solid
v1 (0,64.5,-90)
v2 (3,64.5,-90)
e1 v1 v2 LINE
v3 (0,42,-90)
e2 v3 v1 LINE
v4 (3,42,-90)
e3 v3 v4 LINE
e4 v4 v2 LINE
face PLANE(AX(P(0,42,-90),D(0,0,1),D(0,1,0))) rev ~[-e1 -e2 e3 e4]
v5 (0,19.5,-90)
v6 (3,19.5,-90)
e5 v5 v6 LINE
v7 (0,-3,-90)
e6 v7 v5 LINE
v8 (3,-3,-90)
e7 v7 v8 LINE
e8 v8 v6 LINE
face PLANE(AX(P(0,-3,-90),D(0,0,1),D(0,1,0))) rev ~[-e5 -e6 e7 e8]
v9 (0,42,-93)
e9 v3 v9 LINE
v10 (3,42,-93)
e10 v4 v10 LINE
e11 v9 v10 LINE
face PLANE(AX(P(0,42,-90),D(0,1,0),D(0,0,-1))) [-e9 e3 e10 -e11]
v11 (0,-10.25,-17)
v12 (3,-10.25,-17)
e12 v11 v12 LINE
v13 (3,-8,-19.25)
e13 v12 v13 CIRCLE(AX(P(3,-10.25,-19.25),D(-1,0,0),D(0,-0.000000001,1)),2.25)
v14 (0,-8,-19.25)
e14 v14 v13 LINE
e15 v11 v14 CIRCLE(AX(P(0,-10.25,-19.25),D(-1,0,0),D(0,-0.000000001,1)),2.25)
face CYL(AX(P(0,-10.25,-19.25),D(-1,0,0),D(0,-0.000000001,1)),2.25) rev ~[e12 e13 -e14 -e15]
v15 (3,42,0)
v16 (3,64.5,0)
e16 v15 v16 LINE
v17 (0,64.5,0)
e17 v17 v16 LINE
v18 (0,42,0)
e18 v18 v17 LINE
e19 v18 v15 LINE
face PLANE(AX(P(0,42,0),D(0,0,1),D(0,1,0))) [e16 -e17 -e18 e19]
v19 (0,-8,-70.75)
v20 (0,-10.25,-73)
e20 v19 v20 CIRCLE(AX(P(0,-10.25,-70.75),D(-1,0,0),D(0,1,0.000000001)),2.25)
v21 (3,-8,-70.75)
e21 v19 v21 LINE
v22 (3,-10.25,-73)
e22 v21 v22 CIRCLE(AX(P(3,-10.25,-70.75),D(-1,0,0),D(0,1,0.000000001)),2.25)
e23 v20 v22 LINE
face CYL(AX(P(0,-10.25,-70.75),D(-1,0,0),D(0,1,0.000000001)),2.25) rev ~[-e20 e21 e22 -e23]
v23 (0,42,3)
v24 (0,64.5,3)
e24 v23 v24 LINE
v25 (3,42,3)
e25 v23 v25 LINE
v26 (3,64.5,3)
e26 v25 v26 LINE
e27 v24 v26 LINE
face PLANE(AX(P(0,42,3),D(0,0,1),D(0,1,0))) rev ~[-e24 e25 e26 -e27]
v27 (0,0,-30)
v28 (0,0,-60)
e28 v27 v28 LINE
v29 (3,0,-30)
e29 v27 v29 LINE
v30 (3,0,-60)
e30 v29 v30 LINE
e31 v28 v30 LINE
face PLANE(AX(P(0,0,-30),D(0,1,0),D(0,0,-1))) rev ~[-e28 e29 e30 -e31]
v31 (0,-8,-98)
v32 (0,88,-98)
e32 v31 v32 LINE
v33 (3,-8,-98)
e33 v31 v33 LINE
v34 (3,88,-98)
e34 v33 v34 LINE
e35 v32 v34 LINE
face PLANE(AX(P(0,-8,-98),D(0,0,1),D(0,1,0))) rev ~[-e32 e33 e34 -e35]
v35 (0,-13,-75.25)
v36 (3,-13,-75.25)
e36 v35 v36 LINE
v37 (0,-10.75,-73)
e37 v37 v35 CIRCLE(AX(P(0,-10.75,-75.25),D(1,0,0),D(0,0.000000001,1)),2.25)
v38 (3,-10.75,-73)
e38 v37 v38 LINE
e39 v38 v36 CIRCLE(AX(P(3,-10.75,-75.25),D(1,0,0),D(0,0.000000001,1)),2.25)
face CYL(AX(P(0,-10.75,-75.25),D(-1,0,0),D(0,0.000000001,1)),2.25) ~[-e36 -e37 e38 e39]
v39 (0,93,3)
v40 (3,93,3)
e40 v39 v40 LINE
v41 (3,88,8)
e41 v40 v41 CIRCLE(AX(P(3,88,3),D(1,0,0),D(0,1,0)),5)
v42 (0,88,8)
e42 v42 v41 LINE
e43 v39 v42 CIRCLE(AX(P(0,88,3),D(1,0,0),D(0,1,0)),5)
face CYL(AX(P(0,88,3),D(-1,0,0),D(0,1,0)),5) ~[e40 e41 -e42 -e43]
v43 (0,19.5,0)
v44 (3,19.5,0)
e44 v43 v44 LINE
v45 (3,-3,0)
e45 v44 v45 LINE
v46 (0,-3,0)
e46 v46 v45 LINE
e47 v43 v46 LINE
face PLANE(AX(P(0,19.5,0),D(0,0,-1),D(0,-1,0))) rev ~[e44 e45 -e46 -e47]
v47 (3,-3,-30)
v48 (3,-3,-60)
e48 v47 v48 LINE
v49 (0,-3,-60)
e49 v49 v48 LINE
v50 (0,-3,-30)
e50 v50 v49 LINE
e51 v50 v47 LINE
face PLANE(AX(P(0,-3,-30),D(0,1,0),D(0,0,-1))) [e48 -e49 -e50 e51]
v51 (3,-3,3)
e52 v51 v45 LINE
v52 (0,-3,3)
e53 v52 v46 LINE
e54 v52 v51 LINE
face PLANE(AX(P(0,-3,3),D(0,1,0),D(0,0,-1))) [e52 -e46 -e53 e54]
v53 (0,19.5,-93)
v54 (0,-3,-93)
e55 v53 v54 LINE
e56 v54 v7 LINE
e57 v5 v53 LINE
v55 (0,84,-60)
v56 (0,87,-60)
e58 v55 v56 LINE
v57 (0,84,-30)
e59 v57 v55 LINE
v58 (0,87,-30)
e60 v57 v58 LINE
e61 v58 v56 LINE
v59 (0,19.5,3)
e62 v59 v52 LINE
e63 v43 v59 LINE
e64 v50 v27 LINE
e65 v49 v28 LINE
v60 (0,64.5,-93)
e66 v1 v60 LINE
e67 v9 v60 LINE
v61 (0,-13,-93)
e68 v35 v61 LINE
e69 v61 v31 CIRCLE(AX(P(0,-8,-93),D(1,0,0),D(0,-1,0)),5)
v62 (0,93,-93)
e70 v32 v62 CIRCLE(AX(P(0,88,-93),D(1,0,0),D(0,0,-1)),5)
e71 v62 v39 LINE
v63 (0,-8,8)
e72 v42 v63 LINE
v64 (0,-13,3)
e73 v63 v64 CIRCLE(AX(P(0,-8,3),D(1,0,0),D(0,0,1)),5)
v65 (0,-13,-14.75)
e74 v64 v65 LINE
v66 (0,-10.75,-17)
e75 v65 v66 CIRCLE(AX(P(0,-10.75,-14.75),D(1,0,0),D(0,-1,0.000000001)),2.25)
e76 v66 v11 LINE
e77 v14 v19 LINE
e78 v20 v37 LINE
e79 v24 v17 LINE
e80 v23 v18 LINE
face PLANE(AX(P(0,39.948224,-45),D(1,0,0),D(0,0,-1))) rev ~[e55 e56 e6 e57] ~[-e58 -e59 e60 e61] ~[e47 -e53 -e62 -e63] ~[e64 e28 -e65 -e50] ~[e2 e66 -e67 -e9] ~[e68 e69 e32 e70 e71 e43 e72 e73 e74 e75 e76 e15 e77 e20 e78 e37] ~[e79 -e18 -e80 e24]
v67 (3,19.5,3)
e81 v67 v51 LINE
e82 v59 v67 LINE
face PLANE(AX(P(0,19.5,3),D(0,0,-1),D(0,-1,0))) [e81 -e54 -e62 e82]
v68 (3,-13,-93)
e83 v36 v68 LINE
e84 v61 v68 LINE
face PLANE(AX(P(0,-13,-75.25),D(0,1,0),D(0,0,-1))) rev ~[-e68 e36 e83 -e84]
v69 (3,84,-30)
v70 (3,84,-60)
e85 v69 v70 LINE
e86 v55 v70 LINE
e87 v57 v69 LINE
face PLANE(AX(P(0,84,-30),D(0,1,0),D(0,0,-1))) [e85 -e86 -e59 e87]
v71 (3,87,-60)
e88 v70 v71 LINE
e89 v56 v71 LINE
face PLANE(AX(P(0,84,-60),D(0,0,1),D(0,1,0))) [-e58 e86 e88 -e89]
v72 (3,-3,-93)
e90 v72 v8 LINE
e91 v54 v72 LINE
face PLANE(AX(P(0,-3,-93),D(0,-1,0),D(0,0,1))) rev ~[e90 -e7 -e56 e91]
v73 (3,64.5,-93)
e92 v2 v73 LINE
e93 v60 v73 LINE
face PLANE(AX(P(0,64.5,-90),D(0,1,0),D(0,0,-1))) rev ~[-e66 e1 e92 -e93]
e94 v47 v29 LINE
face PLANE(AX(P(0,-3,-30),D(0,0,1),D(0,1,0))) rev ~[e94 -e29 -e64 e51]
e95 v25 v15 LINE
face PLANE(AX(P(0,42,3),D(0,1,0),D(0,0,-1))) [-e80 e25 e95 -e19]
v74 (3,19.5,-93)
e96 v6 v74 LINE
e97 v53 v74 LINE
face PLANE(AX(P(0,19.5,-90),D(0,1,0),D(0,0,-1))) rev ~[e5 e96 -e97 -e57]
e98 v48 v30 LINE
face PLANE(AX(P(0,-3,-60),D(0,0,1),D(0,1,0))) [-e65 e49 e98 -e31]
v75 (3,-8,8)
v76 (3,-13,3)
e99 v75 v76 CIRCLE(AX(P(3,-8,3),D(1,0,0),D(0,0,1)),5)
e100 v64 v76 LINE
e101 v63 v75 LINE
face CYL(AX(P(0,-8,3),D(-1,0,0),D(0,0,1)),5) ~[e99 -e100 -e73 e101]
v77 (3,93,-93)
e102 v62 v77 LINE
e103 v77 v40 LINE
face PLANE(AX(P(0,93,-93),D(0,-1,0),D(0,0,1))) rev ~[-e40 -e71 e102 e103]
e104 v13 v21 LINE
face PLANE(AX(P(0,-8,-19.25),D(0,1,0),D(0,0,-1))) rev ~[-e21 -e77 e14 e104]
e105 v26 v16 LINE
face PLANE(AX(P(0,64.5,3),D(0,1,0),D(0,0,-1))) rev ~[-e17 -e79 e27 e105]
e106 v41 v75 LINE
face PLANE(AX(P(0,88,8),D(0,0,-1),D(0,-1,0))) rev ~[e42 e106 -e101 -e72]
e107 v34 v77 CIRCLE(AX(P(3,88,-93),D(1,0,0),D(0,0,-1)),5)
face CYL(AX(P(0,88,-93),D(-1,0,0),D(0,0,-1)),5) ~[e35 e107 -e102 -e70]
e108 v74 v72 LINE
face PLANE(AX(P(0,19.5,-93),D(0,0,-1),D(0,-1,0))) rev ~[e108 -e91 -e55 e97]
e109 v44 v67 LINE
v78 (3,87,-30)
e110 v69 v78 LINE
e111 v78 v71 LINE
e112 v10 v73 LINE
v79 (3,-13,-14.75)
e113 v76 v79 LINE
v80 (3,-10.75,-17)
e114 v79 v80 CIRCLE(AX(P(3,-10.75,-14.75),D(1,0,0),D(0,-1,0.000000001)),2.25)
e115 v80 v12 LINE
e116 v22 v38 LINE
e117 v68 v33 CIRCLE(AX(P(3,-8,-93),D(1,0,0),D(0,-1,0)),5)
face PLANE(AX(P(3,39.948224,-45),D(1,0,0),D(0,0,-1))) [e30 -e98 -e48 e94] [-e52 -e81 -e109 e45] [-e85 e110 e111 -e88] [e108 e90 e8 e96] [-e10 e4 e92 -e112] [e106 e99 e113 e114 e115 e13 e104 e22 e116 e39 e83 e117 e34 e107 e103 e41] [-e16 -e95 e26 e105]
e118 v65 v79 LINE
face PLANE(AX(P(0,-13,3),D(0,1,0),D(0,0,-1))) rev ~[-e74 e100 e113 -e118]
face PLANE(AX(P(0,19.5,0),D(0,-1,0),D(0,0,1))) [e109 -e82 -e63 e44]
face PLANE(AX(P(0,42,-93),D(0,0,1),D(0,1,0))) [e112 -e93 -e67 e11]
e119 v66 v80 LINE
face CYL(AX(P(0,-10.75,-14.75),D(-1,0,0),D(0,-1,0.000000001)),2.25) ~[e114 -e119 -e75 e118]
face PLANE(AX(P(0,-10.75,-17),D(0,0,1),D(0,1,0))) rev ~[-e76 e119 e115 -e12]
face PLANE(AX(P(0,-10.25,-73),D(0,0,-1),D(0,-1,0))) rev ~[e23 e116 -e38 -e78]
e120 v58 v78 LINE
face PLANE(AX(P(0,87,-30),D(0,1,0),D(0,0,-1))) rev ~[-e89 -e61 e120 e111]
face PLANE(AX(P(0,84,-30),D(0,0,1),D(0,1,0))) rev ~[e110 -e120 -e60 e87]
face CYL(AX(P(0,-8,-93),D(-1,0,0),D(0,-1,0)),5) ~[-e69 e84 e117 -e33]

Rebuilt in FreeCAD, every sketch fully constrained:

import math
import FreeCAD as App
import Part
import Sketcher
Q = App.Units.Quantity


def add_polygon(sketch, points):
    """Adds a closed chain of lines whose ends are joined by coincident constraints."""
    first, n = sketch.GeometryCount, len(points)
    for a, b in zip(points, points[1:] + points[:1]):
        sketch.addGeometry(Part.LineSegment(App.Vector(*a, 0), App.Vector(*b, 0)), False)
    for i in range(n):
        sketch.addConstraint(Sketcher.Constraint("Coincident", first + i, 2, first + (i + 1) % n, 1))

doc = App.newDocument("Part")
params = doc.addObject("Spreadsheet::Sheet", "Params")
for row, (alias, value) in enumerate([
    ("sketch1_radius", "5 mm"),
    ("sketch1_width", "96 mm"),
    ("sketch1_width2", "3 mm"),
    ("sketch1_height", "30 mm"),
    ("sketch1_radius2", "2.25 mm"),
    ("pad1_length", "3 mm"),
], start=1):
    params.set(f"A{row}", alias)
    params.set(f"B{row}", "=" + value)
    params.setAlias(f"B{row}", alias)

body = doc.addObject("PartDesign::Body", "Body")

sketch1 = body.newObject("Sketcher::SketchObject", "Sketch")
sketch1.AttachmentSupport = (doc.getObject("YZ_Plane"), [""])
sketch1.MapMode = "FlatFace"
sketch1.addGeometry(Part.LineSegment(App.Vector(-13, -75.2, 0), App.Vector(-13, -93, 0)), False)
sketch1.addGeometry(Part.ArcOfCircle(Part.Circle(App.Vector(-8, -93, 0), App.Vector(0, 0, 1), 5), math.radians(180), math.radians(270)), False)
sketch1.addGeometry(Part.LineSegment(App.Vector(-8, -98, 0), App.Vector(88, -98, 0)), False)
sketch1.addGeometry(Part.ArcOfCircle(Part.Circle(App.Vector(88, -93, 0), App.Vector(0, 0, 1), 5), math.radians(-90), math.radians(0)), False)
sketch1.addGeometry(Part.LineSegment(App.Vector(93, -93, 0), App.Vector(93, 3, 0)), False)
sketch1.addGeometry(Part.ArcOfCircle(Part.Circle(App.Vector(88, 3, 0), App.Vector(0, 0, 1), 5), math.radians(0), math.radians(90)), False)
sketch1.addGeometry(Part.LineSegment(App.Vector(88, 8, 0), App.Vector(-8, 8, 0)), False)
sketch1.addGeometry(Part.ArcOfCircle(Part.Circle(App.Vector(-8, 3, 0), App.Vector(0, 0, 1), 5), math.radians(90), math.radians(180)), False)
sketch1.addGeometry(Part.LineSegment(App.Vector(-13, 3, 0), App.Vector(-13, -14.8, 0)), False)
sketch1.addGeometry(Part.ArcOfCircle(Part.Circle(App.Vector(-10.8, -14.8, 0), App.Vector(0, 0, 1), 2.2), math.radians(180), math.radians(270)), False)
sketch1.addGeometry(Part.LineSegment(App.Vector(-10.8, -17, 0), App.Vector(-10.2, -17, 0)), False)
sketch1.addGeometry(Part.ArcOfCircle(Part.Circle(App.Vector(-10.2, -19.2, 0), App.Vector(0, 0, 1), 2.2), math.radians(0), math.radians(90)), False)
sketch1.addGeometry(Part.LineSegment(App.Vector(-8, -19.2, 0), App.Vector(-8, -70.8, 0)), False)
sketch1.addGeometry(Part.ArcOfCircle(Part.Circle(App.Vector(-10.2, -70.8, 0), App.Vector(0, 0, 1), 2.2), math.radians(-90), math.radians(0)), False)
sketch1.addGeometry(Part.LineSegment(App.Vector(-10.2, -73, 0), App.Vector(-10.8, -73, 0)), False)
sketch1.addGeometry(Part.ArcOfCircle(Part.Circle(App.Vector(-10.8, -75.2, 0), App.Vector(0, 0, 1), 2.2), math.radians(90), math.radians(180)), False)
add_polygon(sketch1, [(19.5, 0), (-3, 0), (-3, 3), (19.5, 3)])
add_polygon(sketch1, [(-3, -60), (-3, -30), (0, -30), (0, -60)])
add_polygon(sketch1, [(-3, -90), (19.5, -90), (19.5, -93), (-3, -93)])
add_polygon(sketch1, [(42, 0), (42, 3), (64.5, 3), (64.5, 0)])
add_polygon(sketch1, [(42, -93), (42, -90), (64.5, -90), (64.5, -93)])
add_polygon(sketch1, [(84, -60), (84, -30), (87, -30), (87, -60)])
sketch1.addConstraint(Sketcher.Constraint("Tangent", 0, 2, 1, 1))
sketch1.addConstraint(Sketcher.Constraint("Tangent", 1, 2, 2, 1))
sketch1.addConstraint(Sketcher.Constraint("Tangent", 2, 2, 3, 1))
sketch1.addConstraint(Sketcher.Constraint("Tangent", 3, 2, 4, 1))
sketch1.addConstraint(Sketcher.Constraint("Tangent", 4, 2, 5, 1))
sketch1.addConstraint(Sketcher.Constraint("Tangent", 5, 2, 6, 1))
sketch1.addConstraint(Sketcher.Constraint("Tangent", 6, 2, 7, 1))
sketch1.addConstraint(Sketcher.Constraint("Tangent", 7, 2, 8, 1))
sketch1.addConstraint(Sketcher.Constraint("Tangent", 8, 2, 9, 1))
sketch1.addConstraint(Sketcher.Constraint("Tangent", 9, 2, 10, 1))
sketch1.addConstraint(Sketcher.Constraint("Tangent", 10, 2, 11, 2))
sketch1.addConstraint(Sketcher.Constraint("Tangent", 11, 1, 12, 1))
sketch1.addConstraint(Sketcher.Constraint("Tangent", 12, 2, 13, 2))
sketch1.addConstraint(Sketcher.Constraint("Tangent", 13, 1, 14, 1))
sketch1.addConstraint(Sketcher.Constraint("Tangent", 14, 2, 15, 1))
sketch1.addConstraint(Sketcher.Constraint("Tangent", 15, 2, 0, 1))
sketch1.addConstraint(Sketcher.Constraint("Vertical", 0))
sketch1.addConstraint(Sketcher.Constraint("Horizontal", 2))
sketch1.addConstraint(Sketcher.Constraint("Vertical", 4))
sketch1.addConstraint(Sketcher.Constraint("Horizontal", 6))
sketch1.addConstraint(Sketcher.Constraint("Vertical", 8))
sketch1.addConstraint(Sketcher.Constraint("Horizontal", 10))
sketch1.addConstraint(Sketcher.Constraint("Vertical", 12))
sketch1.addConstraint(Sketcher.Constraint("Horizontal", 14))
sketch1.addConstraint(Sketcher.Constraint("Horizontal", 16))
sketch1.addConstraint(Sketcher.Constraint("Vertical", 17))
sketch1.addConstraint(Sketcher.Constraint("Horizontal", 18))
sketch1.addConstraint(Sketcher.Constraint("Vertical", 19))
sketch1.addConstraint(Sketcher.Constraint("Vertical", 20))
sketch1.addConstraint(Sketcher.Constraint("Horizontal", 21))
sketch1.addConstraint(Sketcher.Constraint("Vertical", 22))
sketch1.addConstraint(Sketcher.Constraint("Horizontal", 23))
sketch1.addConstraint(Sketcher.Constraint("Horizontal", 24))
sketch1.addConstraint(Sketcher.Constraint("Vertical", 25))
sketch1.addConstraint(Sketcher.Constraint("Horizontal", 26))
sketch1.addConstraint(Sketcher.Constraint("Vertical", 27))
sketch1.addConstraint(Sketcher.Constraint("Vertical", 28))
sketch1.addConstraint(Sketcher.Constraint("Horizontal", 29))
sketch1.addConstraint(Sketcher.Constraint("Vertical", 30))
sketch1.addConstraint(Sketcher.Constraint("Horizontal", 31))
sketch1.addConstraint(Sketcher.Constraint("Vertical", 32))
sketch1.addConstraint(Sketcher.Constraint("Horizontal", 33))
sketch1.addConstraint(Sketcher.Constraint("Vertical", 34))
sketch1.addConstraint(Sketcher.Constraint("Horizontal", 35))
sketch1.addConstraint(Sketcher.Constraint("Vertical", 36))
sketch1.addConstraint(Sketcher.Constraint("Horizontal", 37))
sketch1.addConstraint(Sketcher.Constraint("Vertical", 38))
sketch1.addConstraint(Sketcher.Constraint("Horizontal", 39))
sketch1.addConstraint(Sketcher.Constraint("Equal", 1, 3))
sketch1.addConstraint(Sketcher.Constraint("Equal", 3, 5))
sketch1.addConstraint(Sketcher.Constraint("Equal", 5, 7))
sketch1.addConstraint(Sketcher.Constraint("Equal", 9, 11))
sketch1.addConstraint(Sketcher.Constraint("Equal", 11, 13))
sketch1.addConstraint(Sketcher.Constraint("Equal", 13, 15))
sketch1.addConstraint(Sketcher.Constraint("PointOnObject", 16, 2, -1))
sketch1.addConstraint(Sketcher.Constraint("PointOnObject", 21, 2, -2))
sketch1.addConstraint(Sketcher.Constraint("PointOnObject", 30, 2, -1))
sketch1.addConstraint(Sketcher.Constraint("Horizontal", 7, 2, 17, 2))
sketch1.addConstraint(Sketcher.Constraint("Horizontal", 3, 2, 25, 2))
sketch1.addConstraint(Sketcher.Constraint("Horizontal", 18, 2, 28, 2))
sketch1.addConstraint(Sketcher.Constraint("Horizontal", 27, 2, 32, 2))
sketch1.addConstraint(Sketcher.Constraint("Horizontal", 26, 2, 34, 2))
sketch1.addConstraint(Sketcher.Constraint("Horizontal", 21, 2, 36, 2))
sketch1.addConstraint(Sketcher.Constraint("Horizontal", 23, 2, 38, 2))
sketch1.addConstraint(Sketcher.Constraint("Vertical", 1, 3, 7, 3))
sketch1.addConstraint(Sketcher.Constraint("Vertical", 6, 2, 11, 1))
sketch1.addConstraint(Sketcher.Constraint("Vertical", 17, 2, 20, 2))
sketch1.addConstraint(Sketcher.Constraint("Vertical", 19, 2, 24, 2))
sketch1.addConstraint(Sketcher.Constraint("Vertical", 23, 2, 26, 2))
sketch1.addConstraint(Sketcher.Constraint("Vertical", 31, 2, 32, 2))
sketch1.addConstraint(Sketcher.Constraint("Vertical", 30, 2, 33, 2))
sketch1.addConstraint(Sketcher.Constraint("Equal", 26, 29))
sketch1.addConstraint(Sketcher.Constraint("Equal", 23, 37))
sketch1.addConstraint(Sketcher.Constraint("Equal", 6, 4))
sketch1.addConstraint(Sketcher.Constraint("Equal", 0, 8))
sketch1.addConstraint(Sketcher.Constraint("Equal", 39, 17))
sketch1.addConstraint(Sketcher.Constraint("Equal", 19, 25))
sketch1.addConstraint(Sketcher.Constraint("Radius", 1, Q("5 mm")))
sketch1.addConstraint(Sketcher.Constraint("DistanceX", 2, 1, 2, 2, Q("96 mm")))
sketch1.addConstraint(Sketcher.Constraint("DistanceX", 21, 1, 21, 2, Q("3 mm")))
sketch1.addConstraint(Sketcher.Constraint("DistanceY", 20, 1, 20, 2, Q("30 mm")))
sketch1.addConstraint(Sketcher.Constraint("Radius", 9, Q("2.25 mm")))
sketch1.addConstraint(Sketcher.Constraint("DistanceX", 16, 2, 16, 1, Q("22.5 mm")))
sketch1.addConstraint(Sketcher.Constraint("DistanceY", 12, 2, 12, 1, Q("51.5 mm")))
sketch1.addConstraint(Sketcher.Constraint("DistanceX", 1, 3, -1, 1, Q("8 mm")))
sketch1.addConstraint(Sketcher.Constraint("DistanceY", 20, 2, -1, 1, Q("30 mm")))
sketch1.addConstraint(Sketcher.Constraint("DistanceX", -1, 1, 28, 2, Q("42 mm")))
sketch1.addConstraint(Sketcher.Constraint("DistanceX", -1, 1, 36, 2, Q("84 mm")))
sketch1.setExpression("Constraints[101]", "Params.sketch1_radius")
sketch1.setExpression("Constraints[102]", "Params.sketch1_width")
sketch1.setExpression("Constraints[103]", "Params.sketch1_width2")
sketch1.setExpression("Constraints[104]", "Params.sketch1_height")
sketch1.setExpression("Constraints[105]", "Params.sketch1_radius2")
pad1 = body.newObject("PartDesign::Pad", "Pad")
pad1.Profile = sketch1
pad1.setExpression("Length", "Params.pad1_length")

doc.recompute()
